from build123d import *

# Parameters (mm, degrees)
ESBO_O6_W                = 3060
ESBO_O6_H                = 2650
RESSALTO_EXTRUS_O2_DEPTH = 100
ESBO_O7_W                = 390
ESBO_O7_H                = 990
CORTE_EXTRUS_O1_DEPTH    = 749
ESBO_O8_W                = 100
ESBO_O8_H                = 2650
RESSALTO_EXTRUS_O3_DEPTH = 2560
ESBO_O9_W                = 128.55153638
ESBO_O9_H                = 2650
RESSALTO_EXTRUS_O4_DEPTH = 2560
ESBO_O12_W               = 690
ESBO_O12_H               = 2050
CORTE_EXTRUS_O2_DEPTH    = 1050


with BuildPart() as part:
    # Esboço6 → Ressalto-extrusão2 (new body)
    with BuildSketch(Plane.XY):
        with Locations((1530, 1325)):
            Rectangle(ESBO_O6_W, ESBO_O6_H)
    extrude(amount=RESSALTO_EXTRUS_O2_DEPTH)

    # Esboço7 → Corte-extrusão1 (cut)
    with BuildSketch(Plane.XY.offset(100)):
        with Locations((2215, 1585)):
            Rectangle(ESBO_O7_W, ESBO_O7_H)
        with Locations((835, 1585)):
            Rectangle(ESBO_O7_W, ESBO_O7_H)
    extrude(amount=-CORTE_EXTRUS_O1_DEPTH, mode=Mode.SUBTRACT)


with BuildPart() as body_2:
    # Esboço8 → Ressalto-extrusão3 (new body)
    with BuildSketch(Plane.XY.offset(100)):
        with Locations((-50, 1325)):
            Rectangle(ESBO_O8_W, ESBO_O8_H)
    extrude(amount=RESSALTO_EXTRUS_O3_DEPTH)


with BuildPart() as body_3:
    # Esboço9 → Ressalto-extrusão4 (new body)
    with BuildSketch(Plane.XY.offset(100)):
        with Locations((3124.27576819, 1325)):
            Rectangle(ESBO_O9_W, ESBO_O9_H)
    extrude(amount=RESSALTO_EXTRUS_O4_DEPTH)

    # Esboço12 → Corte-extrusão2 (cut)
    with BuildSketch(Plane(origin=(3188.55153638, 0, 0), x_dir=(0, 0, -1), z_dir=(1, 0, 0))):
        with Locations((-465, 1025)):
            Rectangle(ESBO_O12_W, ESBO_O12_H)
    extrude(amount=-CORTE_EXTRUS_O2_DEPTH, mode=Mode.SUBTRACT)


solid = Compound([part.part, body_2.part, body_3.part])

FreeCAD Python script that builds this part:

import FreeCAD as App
import Part
import Sketcher
from FreeCAD import Vector


def add_polygon(sketch, points):
    """Adds a closed chain of lines whose ends are joined by coincident constraints."""
    first, n = sketch.GeometryCount, len(points)
    for a, b in zip(points, points[1:] + points[:1]):
        sketch.addGeometry(Part.LineSegment(App.Vector(*a, 0), App.Vector(*b, 0)), False)
    for i in range(n):
        sketch.addConstraint(Sketcher.Constraint("Coincident", first + i, 2, first + (i + 1) % n, 1))

doc = App.newDocument("Part")
body = doc.addObject("PartDesign::Body", "Body")

sketch1 = body.newObject("Sketcher::SketchObject", "Sketch")
sketch1.AttachmentSupport = (doc.getObject("XY_Plane"), [""])
sketch1.MapMode = "FlatFace"
add_polygon(sketch1, [(0, 2650), (0, 0), (3060, 0), (3060, 2650)])
sketch1.addConstraint(Sketcher.Constraint("Vertical", 0))
sketch1.addConstraint(Sketcher.Constraint("Horizontal", 1))
sketch1.addConstraint(Sketcher.Constraint("Vertical", 2))
sketch1.addConstraint(Sketcher.Constraint("Horizontal", 3))
sketch1.addConstraint(Sketcher.Constraint("Coincident", 0, 2, -1, 1))
sketch1.addConstraint(Sketcher.Constraint("DistanceX", 1, 1, 1, 2, 3060.0))
sketch1.addConstraint(Sketcher.Constraint("DistanceY", 0, 2, 0, 1, 2650.0))
pad1 = body.newObject("PartDesign::Pad", "Pad")
pad1.Profile = sketch1
pad1.Length = 100

sketch2 = body.newObject("Sketcher::SketchObject", "Sketch001")
sketch2.AttachmentSupport = (doc.getObject("XY_Plane"), [""])
sketch2.MapMode = "FlatFace"
sketch2.AttachmentOffset = App.Placement(Vector(0, 0, 100), App.Rotation())
add_polygon(sketch2, [(2020, 2080), (2020, 1090), (2410, 1090), (2410, 2080)])
add_polygon(sketch2, [(640, 2080), (640, 1090), (1030, 1090), (1030, 2080)])
sketch2.addConstraint(Sketcher.Constraint("Vertical", 0))
sketch2.addConstraint(Sketcher.Constraint("Horizontal", 1))
sketch2.addConstraint(Sketcher.Constraint("Vertical", 2))
sketch2.addConstraint(Sketcher.Constraint("Horizontal", 3))
sketch2.addConstraint(Sketcher.Constraint("Vertical", 4))
sketch2.addConstraint(Sketcher.Constraint("Horizontal", 5))
sketch2.addConstraint(Sketcher.Constraint("Vertical", 6))
sketch2.addConstraint(Sketcher.Constraint("Horizontal", 7))
sketch2.addConstraint(Sketcher.Constraint("Horizontal", 1, 2, 4, 2))
sketch2.addConstraint(Sketcher.Constraint("Horizontal", 3, 2, 6, 2))
sketch2.addConstraint(Sketcher.Constraint("Equal", 3, 5))
sketch2.addConstraint(Sketcher.Constraint("DistanceX", 1, 1, 1, 2, 390.0))
sketch2.addConstraint(Sketcher.Constraint("DistanceY", 0, 2, 0, 1, 990.0))
sketch2.addConstraint(Sketcher.Constraint("DistanceX", -1, 1, 0, 2, 2020.0))
sketch2.addConstraint(Sketcher.Constraint("DistanceY", -1, 1, 0, 2, 1090.0))
sketch2.addConstraint(Sketcher.Constraint("DistanceX", -1, 1, 4, 2, 640.0))
pocket1 = body.newObject("PartDesign::Pocket", "Pocket")
pocket1.Profile = sketch2
pocket1.Length = 749
body2 = doc.addObject("PartDesign::Body", "Body001")

sketch3 = body2.newObject("Sketcher::SketchObject", "Sketch002")
sketch3.AttachmentSupport = (doc.getObject("XY_Plane001"), [""])
sketch3.MapMode = "FlatFace"
sketch3.AttachmentOffset = App.Placement(Vector(0, 0, 100), App.Rotation())
add_polygon(sketch3, [(-100, 2650), (-100, 0), (0, 0), (0, 2650)])
sketch3.addConstraint(Sketcher.Constraint("Vertical", 0))
sketch3.addConstraint(Sketcher.Constraint("Horizontal", 1))
sketch3.addConstraint(Sketcher.Constraint("Vertical", 2))
sketch3.addConstraint(Sketcher.Constraint("Horizontal", 3))
sketch3.addConstraint(Sketcher.Constraint("Coincident", 1, 2, -1, 1))
sketch3.addConstraint(Sketcher.Constraint("DistanceX", 1, 1, 1, 2, 100.0))
sketch3.addConstraint(Sketcher.Constraint("DistanceY", 0, 2, 0, 1, 2650.0))
pad2 = body2.newObject("PartDesign::Pad", "Pad001")
pad2.Profile = sketch3
pad2.Length = 2560
body3 = doc.addObject("PartDesign::Body", "Body002")

sketch4 = body3.newObject("Sketcher::SketchObject", "Sketch003")
sketch4.AttachmentSupport = (doc.getObject("XY_Plane002"), [""])
sketch4.MapMode = "FlatFace"
sketch4.AttachmentOffset = App.Placement(Vector(0, 0, 100), App.Rotation())
add_polygon(sketch4, [(3060, 2650), (3060, 0), (3188.551536, 0), (3188.551536, 2650)])
sketch4.addConstraint(Sketcher.Constraint("Vertical", 0))
sketch4.addConstraint(Sketcher.Constraint("Horizontal", 1))
sketch4.addConstraint(Sketcher.Constraint("Vertical", 2))
sketch4.addConstraint(Sketcher.Constraint("Horizontal", 3))
sketch4.addConstraint(Sketcher.Constraint("PointOnObject", 0, 2, -1))
sketch4.addConstraint(Sketcher.Constraint("DistanceY", 0, 2, 0, 1, 2650.0))
sketch4.addConstraint(Sketcher.Constraint("DistanceX", -1, 1, 0, 2, 3060.0))
sketch4.addConstraint(Sketcher.Constraint("DistanceX", 1, 1, 1, 2, 128.551536))
pad3 = body3.newObject("PartDesign::Pad", "Pad002")
pad3.Profile = sketch4
pad3.Length = 2560

sketch5 = body3.newObject("Sketcher::SketchObject", "Sketch004")
sketch5.AttachmentSupport = (doc.getObject("YZ_Plane002"), [""])
sketch5.MapMode = "FlatFace"
sketch5.AttachmentOffset = App.Placement(Vector(0, 0, 3188.551536), App.Rotation())
add_polygon(sketch5, [(2050, 810), (0, 810), (0, 120), (2050, 120)])
sketch5.addConstraint(Sketcher.Constraint("Horizontal", 0))
sketch5.addConstraint(Sketcher.Constraint("Vertical", 1))
sketch5.addConstraint(Sketcher.Constraint("Horizontal", 2))
sketch5.addConstraint(Sketcher.Constraint("Vertical", 3))
sketch5.addConstraint(Sketcher.Constraint("PointOnObject", 0, 2, -2))
sketch5.addConstraint(Sketcher.Constraint("DistanceX", 0, 2, 0, 1, 2050.0))
sketch5.addConstraint(Sketcher.Constraint("DistanceY", 1, 2, 1, 1, 690.0))
sketch5.addConstraint(Sketcher.Constraint("DistanceY", -1, 1, 0, 2, 810.0))
pocket2 = body3.newObject("PartDesign::Pocket", "Pocket001")
pocket2.Profile = sketch5
pocket2.Length = 1050

doc.recompute()
